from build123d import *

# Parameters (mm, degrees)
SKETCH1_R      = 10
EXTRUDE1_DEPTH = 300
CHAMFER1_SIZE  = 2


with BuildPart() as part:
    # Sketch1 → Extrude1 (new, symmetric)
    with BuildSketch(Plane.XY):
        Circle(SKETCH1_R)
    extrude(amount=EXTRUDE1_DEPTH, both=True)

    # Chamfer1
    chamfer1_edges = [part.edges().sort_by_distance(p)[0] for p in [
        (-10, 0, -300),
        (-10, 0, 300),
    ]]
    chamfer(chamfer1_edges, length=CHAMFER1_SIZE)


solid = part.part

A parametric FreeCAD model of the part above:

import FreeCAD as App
import Part
import Sketcher
Q = App.Units.Quantity


def edges_at(feature, points):
    """Names of the edges that pass closest to the given points."""
    edges = feature.Shape.Edges
    near = lambda p: min(range(len(edges)), key=lambda i: edges[i].distToShape(Part.Vertex(*p))[0])
    return sorted({f"Edge{near(p) + 1}" for p in points})

doc = App.newDocument("Part")
body = doc.addObject("PartDesign::Body", "Body")

# Sketch on XY plane
sketch1 = body.newObject("Sketcher::SketchObject", "Sketch")
sketch1.AttachmentSupport = (doc.getObject("XY_Plane"), [""])
sketch1.MapMode = "FlatFace"
sketch1.addGeometry(Part.Circle(App.Vector(0, 0, 0), App.Vector(0, 0, 1), 10), False)
sketch1.addConstraint([
    Sketcher.Constraint("Coincident", 0, 3, -1, 1),
    Sketcher.Constraint("Diameter", 0, Q("20 mm")),
])
pad1 = body.newObject("PartDesign::Pad", "Pad")
pad1.Profile = sketch1
pad1.Length = 600
pad1.Midplane = True
doc.recompute()

chamfer = body.newObject("PartDesign::Chamfer", "Chamfer")
chamfer.Base = (pad1, edges_at(pad1, [(-10, 0, -300), (-10, 0, 300)]))
chamfer.Size = 2

doc.recompute()
